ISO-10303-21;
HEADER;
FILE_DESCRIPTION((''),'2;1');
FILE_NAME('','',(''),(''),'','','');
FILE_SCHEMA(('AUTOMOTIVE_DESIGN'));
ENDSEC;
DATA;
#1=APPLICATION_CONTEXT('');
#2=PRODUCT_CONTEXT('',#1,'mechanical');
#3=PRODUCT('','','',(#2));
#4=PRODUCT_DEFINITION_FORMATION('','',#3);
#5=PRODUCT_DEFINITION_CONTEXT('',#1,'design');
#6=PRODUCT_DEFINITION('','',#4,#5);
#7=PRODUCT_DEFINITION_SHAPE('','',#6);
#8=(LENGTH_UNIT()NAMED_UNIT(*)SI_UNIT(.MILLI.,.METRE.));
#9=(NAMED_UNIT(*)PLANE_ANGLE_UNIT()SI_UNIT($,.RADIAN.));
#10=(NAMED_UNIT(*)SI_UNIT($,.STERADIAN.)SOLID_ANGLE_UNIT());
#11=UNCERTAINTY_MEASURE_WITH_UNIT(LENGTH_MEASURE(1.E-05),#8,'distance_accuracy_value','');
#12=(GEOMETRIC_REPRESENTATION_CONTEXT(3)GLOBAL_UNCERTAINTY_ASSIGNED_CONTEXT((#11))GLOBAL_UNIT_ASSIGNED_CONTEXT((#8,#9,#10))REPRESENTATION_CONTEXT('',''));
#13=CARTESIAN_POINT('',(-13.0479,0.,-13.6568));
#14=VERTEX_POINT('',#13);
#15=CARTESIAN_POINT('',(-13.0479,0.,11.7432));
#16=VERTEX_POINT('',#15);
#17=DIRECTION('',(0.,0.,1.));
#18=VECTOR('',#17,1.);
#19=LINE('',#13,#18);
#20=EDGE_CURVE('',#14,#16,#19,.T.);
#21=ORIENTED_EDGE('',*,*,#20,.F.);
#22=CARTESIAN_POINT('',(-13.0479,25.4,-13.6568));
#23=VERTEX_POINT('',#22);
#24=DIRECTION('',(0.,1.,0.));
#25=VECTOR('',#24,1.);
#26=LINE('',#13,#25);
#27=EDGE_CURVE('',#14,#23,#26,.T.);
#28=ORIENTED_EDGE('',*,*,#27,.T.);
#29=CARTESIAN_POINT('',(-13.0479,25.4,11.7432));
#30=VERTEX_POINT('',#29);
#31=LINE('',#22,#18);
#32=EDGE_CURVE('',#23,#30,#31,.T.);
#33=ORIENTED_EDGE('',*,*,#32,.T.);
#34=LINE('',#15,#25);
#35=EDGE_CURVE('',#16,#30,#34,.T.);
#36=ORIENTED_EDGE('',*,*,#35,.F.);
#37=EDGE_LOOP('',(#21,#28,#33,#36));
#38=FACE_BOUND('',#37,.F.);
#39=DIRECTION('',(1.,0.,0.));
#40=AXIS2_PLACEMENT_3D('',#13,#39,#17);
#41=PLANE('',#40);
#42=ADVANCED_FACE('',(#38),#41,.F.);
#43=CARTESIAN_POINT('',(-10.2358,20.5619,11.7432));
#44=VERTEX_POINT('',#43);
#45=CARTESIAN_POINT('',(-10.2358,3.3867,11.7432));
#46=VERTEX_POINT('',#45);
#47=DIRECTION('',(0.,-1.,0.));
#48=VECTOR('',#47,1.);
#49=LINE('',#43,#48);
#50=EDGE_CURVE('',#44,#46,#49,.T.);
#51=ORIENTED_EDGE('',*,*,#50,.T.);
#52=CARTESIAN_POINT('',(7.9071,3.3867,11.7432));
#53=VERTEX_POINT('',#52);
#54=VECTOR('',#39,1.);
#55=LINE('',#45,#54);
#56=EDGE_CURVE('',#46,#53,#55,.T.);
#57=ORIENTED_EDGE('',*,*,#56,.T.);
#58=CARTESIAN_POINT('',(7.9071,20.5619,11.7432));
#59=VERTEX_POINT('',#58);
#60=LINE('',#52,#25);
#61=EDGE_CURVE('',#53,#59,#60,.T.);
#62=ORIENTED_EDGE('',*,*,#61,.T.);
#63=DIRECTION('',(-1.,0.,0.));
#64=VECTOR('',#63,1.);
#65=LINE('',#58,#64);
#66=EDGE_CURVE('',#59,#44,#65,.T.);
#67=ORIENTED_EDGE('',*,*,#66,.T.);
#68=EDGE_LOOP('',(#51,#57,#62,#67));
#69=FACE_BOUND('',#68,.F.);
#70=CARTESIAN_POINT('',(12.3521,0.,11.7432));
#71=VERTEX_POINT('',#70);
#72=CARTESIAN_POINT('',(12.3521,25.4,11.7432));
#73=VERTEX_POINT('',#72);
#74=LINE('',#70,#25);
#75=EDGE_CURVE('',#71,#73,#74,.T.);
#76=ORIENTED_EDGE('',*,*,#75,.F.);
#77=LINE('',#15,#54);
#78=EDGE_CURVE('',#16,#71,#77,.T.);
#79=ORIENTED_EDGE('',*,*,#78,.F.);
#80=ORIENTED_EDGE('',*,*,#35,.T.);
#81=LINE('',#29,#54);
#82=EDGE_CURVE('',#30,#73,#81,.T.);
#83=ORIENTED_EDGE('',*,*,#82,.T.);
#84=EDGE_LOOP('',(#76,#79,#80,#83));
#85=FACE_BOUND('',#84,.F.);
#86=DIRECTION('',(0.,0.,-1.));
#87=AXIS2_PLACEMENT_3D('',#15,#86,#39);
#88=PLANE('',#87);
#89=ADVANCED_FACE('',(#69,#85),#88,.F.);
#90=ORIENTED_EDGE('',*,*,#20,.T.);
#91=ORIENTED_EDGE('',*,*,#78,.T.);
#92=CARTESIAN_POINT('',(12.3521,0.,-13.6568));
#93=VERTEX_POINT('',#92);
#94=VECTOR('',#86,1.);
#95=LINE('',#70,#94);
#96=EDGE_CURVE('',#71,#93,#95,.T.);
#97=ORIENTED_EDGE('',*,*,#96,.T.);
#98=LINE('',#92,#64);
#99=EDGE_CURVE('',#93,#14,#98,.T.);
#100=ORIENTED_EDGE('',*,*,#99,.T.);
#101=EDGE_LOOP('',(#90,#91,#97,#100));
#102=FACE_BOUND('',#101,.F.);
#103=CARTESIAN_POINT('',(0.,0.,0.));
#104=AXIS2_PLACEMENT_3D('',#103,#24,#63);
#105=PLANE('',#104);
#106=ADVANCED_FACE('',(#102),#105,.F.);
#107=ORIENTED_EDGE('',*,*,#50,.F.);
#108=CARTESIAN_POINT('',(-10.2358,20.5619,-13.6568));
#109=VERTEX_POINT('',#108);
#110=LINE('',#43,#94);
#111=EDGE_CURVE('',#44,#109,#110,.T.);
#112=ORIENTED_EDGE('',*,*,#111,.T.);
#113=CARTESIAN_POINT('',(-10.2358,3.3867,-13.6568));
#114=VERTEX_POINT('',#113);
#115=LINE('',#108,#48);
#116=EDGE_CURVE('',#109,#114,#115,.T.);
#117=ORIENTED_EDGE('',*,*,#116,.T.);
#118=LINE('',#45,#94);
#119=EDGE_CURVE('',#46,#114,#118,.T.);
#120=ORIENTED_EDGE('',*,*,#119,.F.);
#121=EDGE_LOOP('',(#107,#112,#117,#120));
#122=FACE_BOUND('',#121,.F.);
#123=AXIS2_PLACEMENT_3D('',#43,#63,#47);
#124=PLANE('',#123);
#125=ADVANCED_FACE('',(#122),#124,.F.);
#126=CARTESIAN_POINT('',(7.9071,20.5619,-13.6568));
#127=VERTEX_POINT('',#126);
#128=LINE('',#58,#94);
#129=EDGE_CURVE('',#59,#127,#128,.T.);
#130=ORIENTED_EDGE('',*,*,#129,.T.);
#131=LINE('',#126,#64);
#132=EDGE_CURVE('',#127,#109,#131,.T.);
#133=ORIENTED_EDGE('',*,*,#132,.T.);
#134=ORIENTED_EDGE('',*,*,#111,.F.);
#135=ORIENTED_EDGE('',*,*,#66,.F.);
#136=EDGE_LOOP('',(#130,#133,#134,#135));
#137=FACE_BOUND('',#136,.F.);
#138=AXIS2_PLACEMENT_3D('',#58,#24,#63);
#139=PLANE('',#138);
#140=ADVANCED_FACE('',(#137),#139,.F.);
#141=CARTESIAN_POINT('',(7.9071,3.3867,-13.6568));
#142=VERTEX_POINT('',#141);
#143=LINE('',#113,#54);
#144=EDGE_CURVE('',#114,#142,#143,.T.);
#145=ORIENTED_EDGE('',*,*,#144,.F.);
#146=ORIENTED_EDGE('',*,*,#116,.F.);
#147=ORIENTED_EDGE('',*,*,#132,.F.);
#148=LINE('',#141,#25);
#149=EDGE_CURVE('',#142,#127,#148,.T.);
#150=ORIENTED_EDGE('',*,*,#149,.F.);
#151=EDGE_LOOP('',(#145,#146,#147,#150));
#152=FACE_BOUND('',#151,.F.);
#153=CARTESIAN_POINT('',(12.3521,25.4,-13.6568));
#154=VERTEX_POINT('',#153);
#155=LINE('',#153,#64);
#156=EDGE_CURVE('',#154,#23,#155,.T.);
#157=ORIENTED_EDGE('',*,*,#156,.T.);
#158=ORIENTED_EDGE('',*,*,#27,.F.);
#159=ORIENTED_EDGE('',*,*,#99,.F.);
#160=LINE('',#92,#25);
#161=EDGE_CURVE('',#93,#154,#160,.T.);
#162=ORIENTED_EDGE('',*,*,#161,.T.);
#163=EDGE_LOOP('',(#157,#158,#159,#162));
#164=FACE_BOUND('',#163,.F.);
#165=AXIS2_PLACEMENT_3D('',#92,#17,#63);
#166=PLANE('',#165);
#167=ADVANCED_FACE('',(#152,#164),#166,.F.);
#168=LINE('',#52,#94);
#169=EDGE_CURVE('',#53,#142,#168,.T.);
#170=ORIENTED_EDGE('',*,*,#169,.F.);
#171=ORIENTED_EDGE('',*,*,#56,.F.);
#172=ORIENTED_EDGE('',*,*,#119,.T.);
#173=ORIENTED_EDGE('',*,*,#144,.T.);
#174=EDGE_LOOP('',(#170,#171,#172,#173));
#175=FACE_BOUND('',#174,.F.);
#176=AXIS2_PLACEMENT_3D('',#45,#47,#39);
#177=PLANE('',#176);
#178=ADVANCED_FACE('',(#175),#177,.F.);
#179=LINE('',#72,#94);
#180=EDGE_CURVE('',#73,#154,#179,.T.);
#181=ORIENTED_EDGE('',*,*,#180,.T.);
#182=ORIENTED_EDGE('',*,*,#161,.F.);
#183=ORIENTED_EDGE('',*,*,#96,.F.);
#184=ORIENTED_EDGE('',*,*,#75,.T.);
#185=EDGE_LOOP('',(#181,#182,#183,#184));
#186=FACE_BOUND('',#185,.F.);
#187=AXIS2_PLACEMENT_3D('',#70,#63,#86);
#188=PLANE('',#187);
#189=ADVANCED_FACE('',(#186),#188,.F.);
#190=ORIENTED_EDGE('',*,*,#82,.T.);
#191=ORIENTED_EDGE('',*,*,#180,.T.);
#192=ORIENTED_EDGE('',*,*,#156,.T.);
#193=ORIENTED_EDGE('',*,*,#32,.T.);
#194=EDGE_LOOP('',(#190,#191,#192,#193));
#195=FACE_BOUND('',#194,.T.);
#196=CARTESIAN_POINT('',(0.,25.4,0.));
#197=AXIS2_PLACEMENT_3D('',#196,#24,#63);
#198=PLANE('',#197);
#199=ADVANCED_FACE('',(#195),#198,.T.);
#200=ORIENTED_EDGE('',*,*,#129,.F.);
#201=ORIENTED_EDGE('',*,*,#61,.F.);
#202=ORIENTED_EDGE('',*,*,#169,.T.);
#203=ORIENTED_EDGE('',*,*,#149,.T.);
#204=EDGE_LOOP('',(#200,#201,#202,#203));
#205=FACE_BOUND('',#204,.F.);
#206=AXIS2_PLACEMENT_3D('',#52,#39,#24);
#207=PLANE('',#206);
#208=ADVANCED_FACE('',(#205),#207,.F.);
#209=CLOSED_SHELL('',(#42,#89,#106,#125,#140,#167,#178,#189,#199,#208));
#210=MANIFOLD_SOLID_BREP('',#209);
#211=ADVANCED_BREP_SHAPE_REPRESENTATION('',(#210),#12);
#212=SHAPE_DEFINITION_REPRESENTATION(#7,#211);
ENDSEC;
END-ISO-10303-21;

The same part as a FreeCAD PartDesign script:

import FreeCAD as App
import Part
import Sketcher
Q = App.Units.Quantity

doc = App.newDocument("Part")
body = doc.addObject("PartDesign::Body", "Body")

sketch1 = body.newObject("Sketcher::SketchObject", "Sketch")
sketch1.AttachmentSupport = (doc.getObject("XZ_Plane"), [""])
sketch1.MapMode = "FlatFace"
sketch1.addGeometry([
    Part.LineSegment(App.Vector(-13, -14, 0), App.Vector(-13, 12, 0)),
    Part.LineSegment(App.Vector(-13, 12, 0), App.Vector(12, 12, 0)),
    Part.LineSegment(App.Vector(12, 12, 0), App.Vector(12, -14, 0)),
    Part.LineSegment(App.Vector(12, -14, 0), App.Vector(-13, -14, 0)),
], False)
sketch1.addConstraint([
    Sketcher.Constraint("Coincident", 0, 2, 1, 1),
    Sketcher.Constraint("Coincident", 1, 2, 2, 1),
    Sketcher.Constraint("Coincident", 2, 2, 3, 1),
    Sketcher.Constraint("Coincident", 3, 2, 0, 1),
    Sketcher.Constraint("Vertical", 0),
    Sketcher.Constraint("Horizontal", 1),
    Sketcher.Constraint("Vertical", 2),
    Sketcher.Constraint("Horizontal", 3),
    Sketcher.Constraint("Equal", 3, 0),
    Sketcher.Constraint("DistanceX", 1, 1, 1, 2, Q("1 in")),
    Sketcher.Constraint("DistanceX", 0, 2, -1, 1, Q("0.5137 in")),
    Sketcher.Constraint("DistanceY", -1, 1, 0, 2, 11.7432),
])
pad1 = body.newObject("PartDesign::Pad", "Pad")
pad1.Profile = sketch1
pad1.Length = Q("1 in")
pad1.Reversed = True

sketch2 = body.newObject("Sketcher::SketchObject", "Sketch001")
sketch2.AttachmentSupport = (doc.getObject("XY_Plane"), [""])
sketch2.MapMode = "FlatFace"
sketch2.AttachmentOffset = App.Placement(App.Vector(0, 0, 11.7432), App.Rotation())
sketch2.addGeometry([
    Part.LineSegment(App.Vector(-10, 21, 0), App.Vector(-10, 3, 0)),
    Part.LineSegment(App.Vector(-10, 3, 0), App.Vector(8, 3, 0)),
    Part.LineSegment(App.Vector(8, 3, 0), App.Vector(8, 21, 0)),
    Part.LineSegment(App.Vector(8, 21, 0), App.Vector(-10, 21, 0)),
], False)
sketch2.addConstraint([
    Sketcher.Constraint("Coincident", 0, 2, 1, 1),
    Sketcher.Constraint("Coincident", 1, 2, 2, 1),
    Sketcher.Constraint("Coincident", 2, 2, 3, 1),
    Sketcher.Constraint("Coincident", 3, 2, 0, 1),
    Sketcher.Constraint("Vertical", 0),
    Sketcher.Constraint("Horizontal", 1),
    Sketcher.Constraint("Vertical", 2),
    Sketcher.Constraint("Horizontal", 3),
    Sketcher.Constraint("DistanceY", 0, 2, 0, 1, Q("0.6762 in")),
    Sketcher.Constraint("DistanceX", 1, 1, 1, 2, Q("0.7142913 in")),
    Sketcher.Constraint("DistanceX", -1, 1, 1, 2, Q("0.3113 in")),
    Sketcher.Constraint("DistanceY", -1, 1, 0, 2, 3.3867),
])
pocket1 = body.newObject("PartDesign::Pocket", "Pocket")
pocket1.Profile = sketch2
pocket1.Length = Q("1 in")

doc.recompute()
